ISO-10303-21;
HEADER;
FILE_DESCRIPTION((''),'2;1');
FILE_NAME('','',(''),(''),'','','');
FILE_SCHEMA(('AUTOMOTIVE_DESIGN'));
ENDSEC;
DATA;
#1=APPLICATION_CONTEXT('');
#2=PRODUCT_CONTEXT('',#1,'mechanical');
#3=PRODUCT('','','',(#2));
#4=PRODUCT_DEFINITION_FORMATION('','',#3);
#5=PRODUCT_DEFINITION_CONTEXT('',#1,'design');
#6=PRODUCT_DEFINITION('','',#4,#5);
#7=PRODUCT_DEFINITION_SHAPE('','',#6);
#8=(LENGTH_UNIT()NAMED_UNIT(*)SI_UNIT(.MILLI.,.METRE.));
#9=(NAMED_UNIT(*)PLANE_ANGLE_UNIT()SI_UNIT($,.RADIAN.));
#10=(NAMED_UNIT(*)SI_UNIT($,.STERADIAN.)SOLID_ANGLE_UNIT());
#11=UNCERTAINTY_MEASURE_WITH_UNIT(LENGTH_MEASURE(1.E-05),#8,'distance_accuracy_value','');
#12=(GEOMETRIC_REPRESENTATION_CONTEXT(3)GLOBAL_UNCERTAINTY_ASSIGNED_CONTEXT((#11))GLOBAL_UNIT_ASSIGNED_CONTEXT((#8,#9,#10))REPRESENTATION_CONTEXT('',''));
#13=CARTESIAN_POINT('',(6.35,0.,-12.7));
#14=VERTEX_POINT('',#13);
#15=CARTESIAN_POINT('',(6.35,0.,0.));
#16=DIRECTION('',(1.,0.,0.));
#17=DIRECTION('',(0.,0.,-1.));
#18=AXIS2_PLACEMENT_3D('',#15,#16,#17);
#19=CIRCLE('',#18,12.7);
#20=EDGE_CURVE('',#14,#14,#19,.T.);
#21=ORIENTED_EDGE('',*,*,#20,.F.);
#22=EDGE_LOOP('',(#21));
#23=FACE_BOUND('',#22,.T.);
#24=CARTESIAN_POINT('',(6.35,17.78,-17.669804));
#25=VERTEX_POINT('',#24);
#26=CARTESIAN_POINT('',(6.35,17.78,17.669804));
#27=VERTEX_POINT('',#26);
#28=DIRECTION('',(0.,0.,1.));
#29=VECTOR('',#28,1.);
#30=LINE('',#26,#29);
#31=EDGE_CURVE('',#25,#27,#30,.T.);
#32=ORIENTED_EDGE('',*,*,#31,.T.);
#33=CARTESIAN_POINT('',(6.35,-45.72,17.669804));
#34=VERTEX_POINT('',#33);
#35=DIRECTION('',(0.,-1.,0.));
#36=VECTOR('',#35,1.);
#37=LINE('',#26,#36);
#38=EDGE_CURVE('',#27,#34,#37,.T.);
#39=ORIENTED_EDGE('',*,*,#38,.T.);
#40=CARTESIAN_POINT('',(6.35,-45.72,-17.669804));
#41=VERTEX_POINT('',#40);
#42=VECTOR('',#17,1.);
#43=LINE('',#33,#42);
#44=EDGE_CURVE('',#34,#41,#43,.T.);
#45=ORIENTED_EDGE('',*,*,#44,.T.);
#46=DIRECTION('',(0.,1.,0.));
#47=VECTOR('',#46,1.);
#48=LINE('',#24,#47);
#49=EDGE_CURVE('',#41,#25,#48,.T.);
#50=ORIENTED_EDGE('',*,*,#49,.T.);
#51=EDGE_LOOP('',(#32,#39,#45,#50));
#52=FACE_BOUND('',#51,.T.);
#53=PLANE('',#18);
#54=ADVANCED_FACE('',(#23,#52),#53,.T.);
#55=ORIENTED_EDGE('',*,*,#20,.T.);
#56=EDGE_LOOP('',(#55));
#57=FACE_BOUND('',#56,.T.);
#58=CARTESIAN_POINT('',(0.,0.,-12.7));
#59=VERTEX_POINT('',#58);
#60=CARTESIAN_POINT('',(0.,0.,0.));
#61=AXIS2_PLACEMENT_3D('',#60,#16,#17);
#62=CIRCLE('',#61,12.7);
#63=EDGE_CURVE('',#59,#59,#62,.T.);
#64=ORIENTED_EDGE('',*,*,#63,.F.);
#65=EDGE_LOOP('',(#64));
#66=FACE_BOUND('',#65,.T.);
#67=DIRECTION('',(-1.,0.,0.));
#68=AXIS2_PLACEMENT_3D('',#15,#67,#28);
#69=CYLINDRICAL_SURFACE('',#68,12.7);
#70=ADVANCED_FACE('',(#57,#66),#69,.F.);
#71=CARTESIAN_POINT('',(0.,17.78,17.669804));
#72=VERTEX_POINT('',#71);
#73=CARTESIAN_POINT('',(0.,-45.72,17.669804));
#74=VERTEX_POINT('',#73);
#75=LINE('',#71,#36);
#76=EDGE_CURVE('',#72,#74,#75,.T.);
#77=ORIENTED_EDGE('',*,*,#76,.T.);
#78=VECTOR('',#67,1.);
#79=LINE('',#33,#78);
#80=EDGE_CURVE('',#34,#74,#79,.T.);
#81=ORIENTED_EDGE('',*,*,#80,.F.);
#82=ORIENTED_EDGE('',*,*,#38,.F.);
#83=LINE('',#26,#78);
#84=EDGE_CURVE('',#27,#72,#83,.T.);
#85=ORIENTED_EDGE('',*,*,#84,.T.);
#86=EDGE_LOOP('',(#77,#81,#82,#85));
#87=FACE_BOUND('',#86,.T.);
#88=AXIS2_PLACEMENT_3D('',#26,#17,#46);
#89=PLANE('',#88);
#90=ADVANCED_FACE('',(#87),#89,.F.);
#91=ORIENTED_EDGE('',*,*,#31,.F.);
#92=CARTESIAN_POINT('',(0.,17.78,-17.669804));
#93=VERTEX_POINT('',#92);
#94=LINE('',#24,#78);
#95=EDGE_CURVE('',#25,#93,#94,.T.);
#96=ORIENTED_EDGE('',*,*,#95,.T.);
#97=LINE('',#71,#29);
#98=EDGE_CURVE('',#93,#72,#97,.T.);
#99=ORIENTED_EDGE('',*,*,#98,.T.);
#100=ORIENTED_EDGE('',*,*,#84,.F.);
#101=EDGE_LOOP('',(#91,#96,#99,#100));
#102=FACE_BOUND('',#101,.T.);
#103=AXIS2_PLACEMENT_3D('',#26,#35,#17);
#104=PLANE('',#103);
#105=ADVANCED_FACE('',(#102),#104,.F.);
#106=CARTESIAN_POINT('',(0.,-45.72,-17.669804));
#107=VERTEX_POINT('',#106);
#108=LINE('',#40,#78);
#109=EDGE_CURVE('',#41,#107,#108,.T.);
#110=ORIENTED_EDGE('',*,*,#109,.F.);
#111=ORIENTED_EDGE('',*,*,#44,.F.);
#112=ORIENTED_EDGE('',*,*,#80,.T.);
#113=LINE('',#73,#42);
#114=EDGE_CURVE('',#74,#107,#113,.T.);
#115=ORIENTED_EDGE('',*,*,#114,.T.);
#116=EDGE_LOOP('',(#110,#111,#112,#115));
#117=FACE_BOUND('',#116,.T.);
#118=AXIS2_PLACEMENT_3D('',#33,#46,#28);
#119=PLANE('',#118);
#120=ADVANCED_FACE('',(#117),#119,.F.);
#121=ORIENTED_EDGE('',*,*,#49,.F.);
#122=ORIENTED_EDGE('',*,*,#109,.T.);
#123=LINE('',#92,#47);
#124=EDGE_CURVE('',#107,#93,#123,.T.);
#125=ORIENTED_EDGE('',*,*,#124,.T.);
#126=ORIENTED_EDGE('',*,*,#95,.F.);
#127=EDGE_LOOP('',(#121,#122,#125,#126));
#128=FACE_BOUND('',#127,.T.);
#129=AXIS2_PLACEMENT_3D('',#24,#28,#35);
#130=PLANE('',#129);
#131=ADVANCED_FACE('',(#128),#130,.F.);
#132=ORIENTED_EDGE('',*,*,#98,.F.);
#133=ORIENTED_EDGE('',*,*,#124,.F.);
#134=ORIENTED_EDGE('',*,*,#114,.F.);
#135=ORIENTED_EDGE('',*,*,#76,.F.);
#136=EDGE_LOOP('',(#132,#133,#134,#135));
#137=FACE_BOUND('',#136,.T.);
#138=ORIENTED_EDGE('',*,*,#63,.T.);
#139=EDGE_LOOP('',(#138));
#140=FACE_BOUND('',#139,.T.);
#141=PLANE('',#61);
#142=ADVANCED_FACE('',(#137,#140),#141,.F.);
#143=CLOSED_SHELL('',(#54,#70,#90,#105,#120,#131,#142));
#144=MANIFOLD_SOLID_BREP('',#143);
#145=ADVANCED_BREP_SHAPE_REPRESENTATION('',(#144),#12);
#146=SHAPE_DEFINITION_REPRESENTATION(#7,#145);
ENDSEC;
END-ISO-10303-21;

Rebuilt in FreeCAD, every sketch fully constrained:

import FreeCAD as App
import Part
import Sketcher
Q = App.Units.Quantity


def add_polygon(sketch, points):
    """Adds a closed chain of lines whose ends are joined by coincident constraints."""
    first, n = sketch.GeometryCount, len(points)
    for a, b in zip(points, points[1:] + points[:1]):
        sketch.addGeometry(Part.LineSegment(App.Vector(*a, 0), App.Vector(*b, 0)), False)
    for i in range(n):
        sketch.addConstraint(Sketcher.Constraint("Coincident", first + i, 2, first + (i + 1) % n, 1))

doc = App.newDocument("Part")
body = doc.addObject("PartDesign::Body", "Body")

# Sketch on YZ plane
sketch1 = body.newObject("Sketcher::SketchObject", "Sketch")
sketch1.AttachmentSupport = (doc.getObject("YZ_Plane"), [""])
sketch1.MapMode = "FlatFace"
add_polygon(sketch1, [(18, 18), (-46, 18), (-46, -18), (18, -18)])  # lines 0-3
sketch1.addGeometry(Part.Circle(App.Vector(0, 0, 0), App.Vector(0, 0, 1), 13), False)  # 4
sketch1.addConstraint(Sketcher.Constraint("Horizontal", 0))
sketch1.addConstraint(Sketcher.Constraint("Vertical", 1))
sketch1.addConstraint(Sketcher.Constraint("Horizontal", 2))
sketch1.addConstraint(Sketcher.Constraint("Vertical", 3))
sketch1.addConstraint(Sketcher.Constraint("Coincident", 4, 3, -1, 1))
sketch1.addConstraint(Sketcher.Constraint("Diameter", 4, Q("1 in")))
sketch1.addConstraint(Sketcher.Constraint("DistanceX", 0, 2, 0, 1, Q("2.5 in")))
sketch1.addConstraint(Sketcher.Constraint("DistanceX", 0, 2, -1, 1, Q("1.8 in")))
sketch1.addConstraint(Sketcher.Constraint("DistanceY", 1, 2, 1, 1, 35.339608))
sketch1.addConstraint(Sketcher.Constraint("DistanceY", -1, 1, 0, 2, 17.669804))
pad1 = body.newObject("PartDesign::Pad", "Pad")
pad1.Profile = sketch1
pad1.Length = Q("0.25 in")

doc.recompute()
